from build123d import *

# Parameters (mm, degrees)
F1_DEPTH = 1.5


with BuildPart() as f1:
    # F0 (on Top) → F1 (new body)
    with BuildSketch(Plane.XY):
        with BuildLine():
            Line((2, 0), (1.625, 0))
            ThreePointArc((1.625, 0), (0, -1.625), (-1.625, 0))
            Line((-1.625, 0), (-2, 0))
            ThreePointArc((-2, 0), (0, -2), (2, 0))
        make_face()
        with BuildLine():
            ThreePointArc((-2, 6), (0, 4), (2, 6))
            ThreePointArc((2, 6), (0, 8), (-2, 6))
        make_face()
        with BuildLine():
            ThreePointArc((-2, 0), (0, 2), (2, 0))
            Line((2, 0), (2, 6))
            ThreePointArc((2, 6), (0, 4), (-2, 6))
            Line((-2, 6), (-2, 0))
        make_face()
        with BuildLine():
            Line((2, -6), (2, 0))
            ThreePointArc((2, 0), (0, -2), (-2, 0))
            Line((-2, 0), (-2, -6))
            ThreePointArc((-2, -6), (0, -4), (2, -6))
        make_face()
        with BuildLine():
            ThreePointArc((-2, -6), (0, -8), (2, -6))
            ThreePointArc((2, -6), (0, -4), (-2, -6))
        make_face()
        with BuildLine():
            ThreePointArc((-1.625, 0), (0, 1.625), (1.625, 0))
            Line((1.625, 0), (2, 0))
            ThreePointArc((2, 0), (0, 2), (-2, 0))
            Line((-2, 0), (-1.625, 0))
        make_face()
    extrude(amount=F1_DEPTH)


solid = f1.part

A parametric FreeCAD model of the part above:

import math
import FreeCAD as App
import Part
import Sketcher
from FreeCAD import Vector

doc = App.newDocument("Part")
body = doc.addObject("PartDesign::Body", "Body")

# Sketch on XY plane
sketch1 = body.newObject("Sketcher::SketchObject", "Sketch")
sketch1.AttachmentSupport = (doc.getObject("XY_Plane"), [""])
sketch1.MapMode = "FlatFace"
sketch1.addGeometry(Part.ArcOfCircle(Part.Circle(Vector(0, -6, 0), Vector(0, 0, 1), 2), math.radians(180), math.radians(360)), False)
sketch1.addGeometry(Part.LineSegment(Vector(2, -6, 0), Vector(2, 6, 0)), False)
sketch1.addGeometry(Part.ArcOfCircle(Part.Circle(Vector(0, 6, 0), Vector(0, 0, 1), 2), math.radians(0), math.radians(180)), False)
sketch1.addGeometry(Part.LineSegment(Vector(-2, 6, 0), Vector(-2, -6, 0)), False)
sketch1.addGeometry(Part.Circle(Vector(0, 0, 0), Vector(0, 0, 1), 1.625), False)
sketch1.addConstraint(Sketcher.Constraint("Tangent", 0, 2, 1, 1))
sketch1.addConstraint(Sketcher.Constraint("Tangent", 1, 2, 2, 1))
sketch1.addConstraint(Sketcher.Constraint("Tangent", 2, 2, 3, 1))
sketch1.addConstraint(Sketcher.Constraint("Tangent", 3, 2, 0, 1))
sketch1.addConstraint(Sketcher.Constraint("Vertical", 1))
sketch1.addConstraint(Sketcher.Constraint("Vertical", 3))
sketch1.addConstraint(Sketcher.Constraint("Coincident", 4, 3, -1, 1))
sketch1.addConstraint(Sketcher.Constraint("Symmetric", 0, 3, 2, 3, -1, 1))
sketch1.addConstraint(Sketcher.Constraint("Radius", 0, 2.0))
sketch1.addConstraint(Sketcher.Constraint("Diameter", 4, 3.25))
sketch1.addConstraint(Sketcher.Constraint("DistanceY", 1, 1, 1, 2, 12.0))
pad1 = body.newObject("PartDesign::Pad", "Pad")
pad1.Profile = sketch1
pad1.Length = 1.5

doc.recompute()
